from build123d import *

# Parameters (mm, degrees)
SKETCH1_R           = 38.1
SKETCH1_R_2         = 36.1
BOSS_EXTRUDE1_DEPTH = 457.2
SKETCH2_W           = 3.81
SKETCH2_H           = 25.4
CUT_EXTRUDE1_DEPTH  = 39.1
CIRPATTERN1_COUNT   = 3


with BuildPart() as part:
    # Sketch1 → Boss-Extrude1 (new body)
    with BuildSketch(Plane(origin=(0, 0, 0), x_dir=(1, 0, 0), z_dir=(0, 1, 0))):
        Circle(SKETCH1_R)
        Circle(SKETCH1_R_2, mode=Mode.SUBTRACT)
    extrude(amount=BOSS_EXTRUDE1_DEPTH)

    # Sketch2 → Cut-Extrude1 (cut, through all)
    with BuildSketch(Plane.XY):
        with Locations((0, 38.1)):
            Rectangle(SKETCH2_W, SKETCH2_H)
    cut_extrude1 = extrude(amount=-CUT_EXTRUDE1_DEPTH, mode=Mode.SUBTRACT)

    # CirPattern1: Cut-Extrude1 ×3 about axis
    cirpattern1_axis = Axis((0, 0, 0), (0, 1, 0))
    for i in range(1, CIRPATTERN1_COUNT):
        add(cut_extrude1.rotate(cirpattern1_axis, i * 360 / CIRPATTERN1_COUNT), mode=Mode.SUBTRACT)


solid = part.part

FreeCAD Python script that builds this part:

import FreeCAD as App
import Part
import Sketcher
from FreeCAD import Vector
Q = App.Units.Quantity

doc = App.newDocument("Part")
params = doc.addObject("Spreadsheet::Sheet", "Params")
for row, (alias, value) in enumerate([
    ("sketch1_diameter", "3 in"),
    ("pad1_length", "18 in"),
    ("sketch2_height", "1 in"),
    ("sketch2_width", "0.15 in"),
], start=1):
    params.set(f"A{row}", alias)
    params.set(f"B{row}", "=" + value)
    params.setAlias(f"B{row}", alias)

body = doc.addObject("PartDesign::Body", "Body")

sketch1 = body.newObject("Sketcher::SketchObject", "Sketch")
sketch1.AttachmentSupport = (doc.getObject("XZ_Plane"), [""])
sketch1.MapMode = "FlatFace"
sketch1.addGeometry([
    Part.Circle(Vector(0, 0, 0), Vector(0, 0, 1), 38.1),
    Part.Circle(Vector(0, 0, 0), Vector(0, 0, 1), 36.1),
], False)
sketch1.addConstraint([
    Sketcher.Constraint("Coincident", 0, 3, -1, 1),
    Sketcher.Constraint("Coincident", 1, 3, -1, 1),
    Sketcher.Constraint("Diameter", 0, Q("3 in")),
    Sketcher.Constraint("Diameter", 1, 72.2),
])
sketch1.setExpression("Constraints[2]", "Params.sketch1_diameter")
pad1 = body.newObject("PartDesign::Pad", "Pad")
pad1.Profile = sketch1
pad1.setExpression("Length", "Params.pad1_length")
pad1.Reversed = True

sketch2 = body.newObject("Sketcher::SketchObject", "Sketch001")
sketch2.AttachmentSupport = (doc.getObject("XY_Plane"), [""])
sketch2.MapMode = "FlatFace"
sketch2.addGeometry([
    Part.LineSegment(Vector(-1.905, 50.8, 0), Vector(-1.905, 25.4, 0)),
    Part.LineSegment(Vector(-1.905, 25.4, 0), Vector(1.905, 25.4, 0)),
    Part.LineSegment(Vector(1.905, 25.4, 0), Vector(1.905, 50.8, 0)),
    Part.LineSegment(Vector(1.905, 50.8, 0), Vector(-1.905, 50.8, 0)),
], False)
sketch2.addConstraint([
    Sketcher.Constraint("Coincident", 0, 2, 1, 1),
    Sketcher.Constraint("Coincident", 1, 2, 2, 1),
    Sketcher.Constraint("Coincident", 2, 2, 3, 1),
    Sketcher.Constraint("Coincident", 3, 2, 0, 1),
    Sketcher.Constraint("Vertical", 0),
    Sketcher.Constraint("Horizontal", 1),
    Sketcher.Constraint("Vertical", 2),
    Sketcher.Constraint("Horizontal", 3),
    Sketcher.Constraint("DistanceY", 0, 2, 0, 1, Q("1 in")),
    Sketcher.Constraint("DistanceY", -1, 1, 0, 2, Q("1 in")),
    Sketcher.Constraint("DistanceX", 1, 1, 1, 2, Q("0.15 in")),
    Sketcher.Constraint("DistanceX", 0, 2, -1, 1, Q("0.075 in")),
])
sketch2.setExpression("Constraints[8]", "Params.sketch2_height")
sketch2.setExpression("Constraints[10]", "Params.sketch2_width")
pocket1 = body.newObject("PartDesign::Pocket", "Pocket")
pocket1.Profile = sketch2
pocket1.Type = "ThroughAll"
doc.recompute()

polarpattern = body.newObject("PartDesign::PolarPattern", "PolarPattern")
polarpattern.Originals = [pocket1]
polarpattern.Axis = (doc.getObject("Y_Axis"), [""])
polarpattern.Angle = 360
polarpattern.Occurrences = 3
body.Tip = polarpattern

doc.recompute()
